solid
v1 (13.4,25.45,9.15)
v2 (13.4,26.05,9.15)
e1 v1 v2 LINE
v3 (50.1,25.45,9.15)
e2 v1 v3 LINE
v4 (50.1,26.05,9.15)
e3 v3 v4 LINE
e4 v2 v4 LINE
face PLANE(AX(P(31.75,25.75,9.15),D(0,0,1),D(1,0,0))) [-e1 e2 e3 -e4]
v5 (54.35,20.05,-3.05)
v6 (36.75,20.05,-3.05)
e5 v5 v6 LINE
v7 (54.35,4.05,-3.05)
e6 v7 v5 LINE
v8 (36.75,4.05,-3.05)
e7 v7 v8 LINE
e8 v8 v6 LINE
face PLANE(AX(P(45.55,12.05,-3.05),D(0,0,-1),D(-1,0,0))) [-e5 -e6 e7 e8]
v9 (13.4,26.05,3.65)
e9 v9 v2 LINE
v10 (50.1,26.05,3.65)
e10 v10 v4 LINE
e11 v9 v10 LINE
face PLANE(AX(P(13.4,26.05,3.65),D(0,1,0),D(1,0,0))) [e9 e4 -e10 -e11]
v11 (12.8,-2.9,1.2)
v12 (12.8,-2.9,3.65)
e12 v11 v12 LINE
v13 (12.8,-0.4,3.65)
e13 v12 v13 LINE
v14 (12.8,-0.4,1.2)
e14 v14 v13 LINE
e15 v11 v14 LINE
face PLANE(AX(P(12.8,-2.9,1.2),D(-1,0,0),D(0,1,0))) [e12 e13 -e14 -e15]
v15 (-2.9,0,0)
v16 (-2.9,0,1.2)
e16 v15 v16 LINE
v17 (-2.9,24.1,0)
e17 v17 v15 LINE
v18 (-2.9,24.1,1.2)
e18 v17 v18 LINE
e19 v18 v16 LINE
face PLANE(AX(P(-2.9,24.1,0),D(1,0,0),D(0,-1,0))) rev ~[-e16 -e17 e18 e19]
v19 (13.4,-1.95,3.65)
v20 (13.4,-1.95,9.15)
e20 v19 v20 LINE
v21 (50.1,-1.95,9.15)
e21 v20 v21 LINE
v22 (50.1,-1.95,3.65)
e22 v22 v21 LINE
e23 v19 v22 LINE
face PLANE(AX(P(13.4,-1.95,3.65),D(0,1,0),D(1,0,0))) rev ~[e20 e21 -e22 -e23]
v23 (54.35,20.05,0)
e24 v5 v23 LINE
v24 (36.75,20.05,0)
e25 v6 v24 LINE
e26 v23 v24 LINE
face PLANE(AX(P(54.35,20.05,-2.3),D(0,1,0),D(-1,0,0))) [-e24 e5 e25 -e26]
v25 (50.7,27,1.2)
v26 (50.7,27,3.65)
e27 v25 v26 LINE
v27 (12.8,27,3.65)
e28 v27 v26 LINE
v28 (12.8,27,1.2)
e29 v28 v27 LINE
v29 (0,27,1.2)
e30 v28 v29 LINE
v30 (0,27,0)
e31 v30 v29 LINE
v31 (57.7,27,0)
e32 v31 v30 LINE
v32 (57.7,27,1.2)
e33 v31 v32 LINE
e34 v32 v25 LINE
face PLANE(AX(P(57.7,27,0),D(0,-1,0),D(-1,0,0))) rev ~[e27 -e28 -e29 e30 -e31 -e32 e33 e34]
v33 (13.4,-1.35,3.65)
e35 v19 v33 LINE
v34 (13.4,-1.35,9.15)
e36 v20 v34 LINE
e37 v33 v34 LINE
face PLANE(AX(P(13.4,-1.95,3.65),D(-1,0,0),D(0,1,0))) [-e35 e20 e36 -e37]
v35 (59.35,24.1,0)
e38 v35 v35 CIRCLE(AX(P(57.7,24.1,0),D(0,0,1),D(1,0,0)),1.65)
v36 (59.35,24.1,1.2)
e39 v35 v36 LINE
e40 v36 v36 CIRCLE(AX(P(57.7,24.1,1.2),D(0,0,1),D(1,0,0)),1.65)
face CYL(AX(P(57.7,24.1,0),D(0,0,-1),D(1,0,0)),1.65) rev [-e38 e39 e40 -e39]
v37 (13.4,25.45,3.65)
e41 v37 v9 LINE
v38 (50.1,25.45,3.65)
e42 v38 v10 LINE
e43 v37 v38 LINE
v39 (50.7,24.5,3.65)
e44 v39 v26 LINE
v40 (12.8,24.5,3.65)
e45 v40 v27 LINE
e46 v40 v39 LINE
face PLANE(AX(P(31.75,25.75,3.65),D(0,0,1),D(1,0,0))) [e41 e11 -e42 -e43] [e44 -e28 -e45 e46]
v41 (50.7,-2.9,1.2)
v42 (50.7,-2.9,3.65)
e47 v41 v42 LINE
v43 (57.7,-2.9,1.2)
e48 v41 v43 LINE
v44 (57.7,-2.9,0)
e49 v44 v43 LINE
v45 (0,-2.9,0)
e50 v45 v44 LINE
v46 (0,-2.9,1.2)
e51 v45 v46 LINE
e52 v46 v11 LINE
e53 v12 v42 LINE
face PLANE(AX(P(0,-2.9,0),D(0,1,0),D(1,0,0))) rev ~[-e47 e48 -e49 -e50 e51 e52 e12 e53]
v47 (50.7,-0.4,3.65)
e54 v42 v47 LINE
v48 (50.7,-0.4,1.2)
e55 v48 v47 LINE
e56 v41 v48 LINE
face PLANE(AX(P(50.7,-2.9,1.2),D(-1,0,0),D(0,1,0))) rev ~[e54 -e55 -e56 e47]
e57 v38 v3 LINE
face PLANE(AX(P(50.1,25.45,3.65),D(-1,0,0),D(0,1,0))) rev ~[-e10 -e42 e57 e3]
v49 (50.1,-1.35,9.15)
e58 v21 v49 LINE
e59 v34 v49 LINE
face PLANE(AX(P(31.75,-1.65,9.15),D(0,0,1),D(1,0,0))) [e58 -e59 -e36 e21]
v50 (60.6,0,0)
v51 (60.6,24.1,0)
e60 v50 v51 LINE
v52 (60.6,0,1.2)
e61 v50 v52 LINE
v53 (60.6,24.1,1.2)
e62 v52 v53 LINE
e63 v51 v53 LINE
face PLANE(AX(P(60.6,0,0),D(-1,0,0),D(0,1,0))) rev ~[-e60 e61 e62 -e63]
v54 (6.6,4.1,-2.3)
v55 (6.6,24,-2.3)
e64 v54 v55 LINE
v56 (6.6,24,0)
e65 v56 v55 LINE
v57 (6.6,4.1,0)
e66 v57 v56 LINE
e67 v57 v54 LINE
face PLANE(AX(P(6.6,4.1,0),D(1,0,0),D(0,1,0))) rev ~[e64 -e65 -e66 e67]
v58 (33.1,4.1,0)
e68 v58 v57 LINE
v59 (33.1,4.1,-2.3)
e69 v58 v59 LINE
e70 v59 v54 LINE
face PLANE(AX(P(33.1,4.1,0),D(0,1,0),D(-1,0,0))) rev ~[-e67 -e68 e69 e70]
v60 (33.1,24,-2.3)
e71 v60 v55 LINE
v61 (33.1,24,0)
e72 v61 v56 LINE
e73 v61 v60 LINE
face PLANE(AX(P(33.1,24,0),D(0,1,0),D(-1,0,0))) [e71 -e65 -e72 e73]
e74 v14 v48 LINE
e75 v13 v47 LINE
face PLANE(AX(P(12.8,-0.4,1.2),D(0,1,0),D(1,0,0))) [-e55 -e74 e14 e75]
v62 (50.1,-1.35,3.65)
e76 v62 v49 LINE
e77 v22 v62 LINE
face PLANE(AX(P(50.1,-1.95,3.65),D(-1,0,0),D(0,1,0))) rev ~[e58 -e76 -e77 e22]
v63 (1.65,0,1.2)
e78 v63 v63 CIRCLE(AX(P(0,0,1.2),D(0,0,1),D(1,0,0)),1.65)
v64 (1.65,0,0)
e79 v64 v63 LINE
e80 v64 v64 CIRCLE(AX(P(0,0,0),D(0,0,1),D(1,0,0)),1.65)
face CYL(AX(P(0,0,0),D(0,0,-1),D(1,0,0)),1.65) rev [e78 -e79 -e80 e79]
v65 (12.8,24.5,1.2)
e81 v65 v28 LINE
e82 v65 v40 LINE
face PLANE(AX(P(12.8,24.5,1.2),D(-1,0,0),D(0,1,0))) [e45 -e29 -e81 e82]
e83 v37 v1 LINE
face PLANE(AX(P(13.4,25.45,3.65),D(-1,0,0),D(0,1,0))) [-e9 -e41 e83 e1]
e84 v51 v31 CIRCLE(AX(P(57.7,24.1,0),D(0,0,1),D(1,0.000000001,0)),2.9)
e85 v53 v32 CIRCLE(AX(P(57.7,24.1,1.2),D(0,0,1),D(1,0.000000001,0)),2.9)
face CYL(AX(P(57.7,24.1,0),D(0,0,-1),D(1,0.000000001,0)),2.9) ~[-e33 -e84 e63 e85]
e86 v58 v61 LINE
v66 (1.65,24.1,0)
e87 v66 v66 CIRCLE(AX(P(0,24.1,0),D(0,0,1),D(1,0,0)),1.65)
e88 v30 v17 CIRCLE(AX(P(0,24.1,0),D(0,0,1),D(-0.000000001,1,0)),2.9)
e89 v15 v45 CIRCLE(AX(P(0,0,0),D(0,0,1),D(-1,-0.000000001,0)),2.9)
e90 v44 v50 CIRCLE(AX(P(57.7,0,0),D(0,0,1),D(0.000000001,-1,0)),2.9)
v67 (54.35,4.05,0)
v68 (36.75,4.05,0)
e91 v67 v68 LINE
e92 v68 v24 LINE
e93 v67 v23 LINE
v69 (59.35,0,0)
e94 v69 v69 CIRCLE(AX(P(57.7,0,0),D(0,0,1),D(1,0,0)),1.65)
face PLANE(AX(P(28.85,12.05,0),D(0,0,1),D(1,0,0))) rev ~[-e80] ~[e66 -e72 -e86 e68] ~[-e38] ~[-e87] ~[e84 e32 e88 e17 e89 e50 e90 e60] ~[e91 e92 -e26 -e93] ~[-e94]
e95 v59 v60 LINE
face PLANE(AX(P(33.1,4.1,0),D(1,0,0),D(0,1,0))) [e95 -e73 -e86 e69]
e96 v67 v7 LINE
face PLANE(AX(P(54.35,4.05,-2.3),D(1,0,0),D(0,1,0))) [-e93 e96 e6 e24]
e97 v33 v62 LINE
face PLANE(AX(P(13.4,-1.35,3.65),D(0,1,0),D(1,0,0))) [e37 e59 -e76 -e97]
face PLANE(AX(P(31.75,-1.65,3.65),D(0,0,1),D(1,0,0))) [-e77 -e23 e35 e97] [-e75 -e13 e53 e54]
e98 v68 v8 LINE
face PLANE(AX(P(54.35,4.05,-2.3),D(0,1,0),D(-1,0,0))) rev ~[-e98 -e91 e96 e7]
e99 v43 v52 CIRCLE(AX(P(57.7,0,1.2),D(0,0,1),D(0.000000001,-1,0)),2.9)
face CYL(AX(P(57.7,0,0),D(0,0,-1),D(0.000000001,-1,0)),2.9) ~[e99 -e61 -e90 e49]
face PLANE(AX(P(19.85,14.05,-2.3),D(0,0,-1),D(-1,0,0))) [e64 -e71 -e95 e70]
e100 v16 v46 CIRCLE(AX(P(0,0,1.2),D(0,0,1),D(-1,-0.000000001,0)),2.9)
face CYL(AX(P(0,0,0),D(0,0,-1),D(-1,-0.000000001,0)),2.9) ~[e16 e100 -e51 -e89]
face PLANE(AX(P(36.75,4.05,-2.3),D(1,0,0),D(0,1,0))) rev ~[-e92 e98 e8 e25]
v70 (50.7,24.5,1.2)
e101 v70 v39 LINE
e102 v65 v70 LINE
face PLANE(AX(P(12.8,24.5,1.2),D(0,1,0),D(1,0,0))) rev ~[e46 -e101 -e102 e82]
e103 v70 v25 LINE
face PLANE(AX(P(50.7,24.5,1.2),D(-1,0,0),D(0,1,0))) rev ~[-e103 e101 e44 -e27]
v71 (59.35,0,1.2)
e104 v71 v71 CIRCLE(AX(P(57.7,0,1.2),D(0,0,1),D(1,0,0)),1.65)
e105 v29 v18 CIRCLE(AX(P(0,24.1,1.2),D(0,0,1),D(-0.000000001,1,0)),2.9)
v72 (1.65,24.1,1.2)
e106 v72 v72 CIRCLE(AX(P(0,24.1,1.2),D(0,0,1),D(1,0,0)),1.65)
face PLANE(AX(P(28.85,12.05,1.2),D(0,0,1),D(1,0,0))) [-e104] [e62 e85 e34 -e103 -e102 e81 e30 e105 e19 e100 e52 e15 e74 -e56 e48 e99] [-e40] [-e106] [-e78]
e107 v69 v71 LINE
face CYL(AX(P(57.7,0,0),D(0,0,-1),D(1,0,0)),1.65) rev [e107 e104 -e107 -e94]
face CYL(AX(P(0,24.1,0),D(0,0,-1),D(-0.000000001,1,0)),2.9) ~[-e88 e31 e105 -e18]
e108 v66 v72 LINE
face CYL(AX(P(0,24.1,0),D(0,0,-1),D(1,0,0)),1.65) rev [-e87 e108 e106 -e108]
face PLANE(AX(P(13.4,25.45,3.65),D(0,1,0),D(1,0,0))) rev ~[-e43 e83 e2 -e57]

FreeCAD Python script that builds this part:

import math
import FreeCAD as App
import Part
import Sketcher
from FreeCAD import Vector
Q = App.Units.Quantity

doc = App.newDocument("Part")
params = doc.addObject("Spreadsheet::Sheet", "Params")
for row, (alias, value) in enumerate([
    ("sketch1_diameter", "3.3 mm"),
    ("sketch1_radius", "2.9 mm"),
    ("sketch1_width", "57.7 mm"),
    ("sketch1_height", "24.1 mm"),
    ("pad1_length", "1.2 mm"),
    ("sketch2_height", "16 mm"),
    ("sketch2_width", "17.6 mm"),
    ("sketch2_width2", "26.5 mm"),
    ("sketch2_height2", "19.9 mm"),
    ("pad2_length", "2.3 mm"),
    ("sketch3_height", "16 mm"),
    ("sketch3_width", "17.6 mm"),
    ("pad3_length", "0.75 mm"),
    ("sketch4_width", "37.9 mm"),
    ("sketch4_height", "2.5 mm"),
    ("pad4_length", "2.45 mm"),
    ("sketch5_width", "36.7 mm"),
    ("sketch5_height", "0.6 mm"),
    ("pad5_length", "5.5 mm"),
], start=1):
    params.set(f"A{row}", alias)
    params.set(f"B{row}", "=" + value)
    params.setAlias(f"B{row}", alias)

body = doc.addObject("PartDesign::Body", "Body")

sketch1 = body.newObject("Sketcher::SketchObject", "Sketch")
sketch1.AttachmentSupport = (doc.getObject("XY_Plane"), [""])
sketch1.MapMode = "FlatFace"
sketch1.addGeometry([
    Part.LineSegment(Vector(0, -2.9, 0), Vector(57.7, -2.9, 0)),
    Part.ArcOfCircle(Part.Circle(Vector(57.7, 0, 0), Vector(0, 0, 1), 2.9), math.radians(-90), math.radians(0)),
    Part.LineSegment(Vector(60.6, 0, 0), Vector(60.6, 24.1, 0)),
    Part.ArcOfCircle(Part.Circle(Vector(57.7, 24.1, 0), Vector(0, 0, 1), 2.9), math.radians(0), math.radians(90)),
    Part.LineSegment(Vector(57.7, 27, 0), Vector(0, 27, 0)),
    Part.ArcOfCircle(Part.Circle(Vector(0, 24.1, 0), Vector(0, 0, 1), 2.9), math.radians(90), math.radians(180)),
    Part.LineSegment(Vector(-2.9, 24.1, 0), Vector(-2.9, 0, 0)),
    Part.ArcOfCircle(Part.Circle(Vector(0, 0, 0), Vector(0, 0, 1), 2.9), math.radians(-180), math.radians(-90)),
    Part.Circle(Vector(0, 0, 0), Vector(0, 0, 1), 1.6),
    Part.Circle(Vector(57.7, 0, 0), Vector(0, 0, 1), 1.6),
    Part.Circle(Vector(0, 24.1, 0), Vector(0, 0, 1), 1.6),
    Part.Circle(Vector(57.7, 24.1, 0), Vector(0, 0, 1), 1.6),
], False)
sketch1.addConstraint([
    Sketcher.Constraint("Tangent", 0, 2, 1, 1),
    Sketcher.Constraint("Tangent", 1, 2, 2, 1),
    Sketcher.Constraint("Tangent", 2, 2, 3, 1),
    Sketcher.Constraint("Tangent", 3, 2, 4, 1),
    Sketcher.Constraint("Tangent", 4, 2, 5, 1),
    Sketcher.Constraint("Tangent", 5, 2, 6, 1),
    Sketcher.Constraint("Tangent", 6, 2, 7, 1),
    Sketcher.Constraint("Tangent", 7, 2, 0, 1),
    Sketcher.Constraint("Horizontal", 0),
    Sketcher.Constraint("Vertical", 2),
    Sketcher.Constraint("Horizontal", 4),
    Sketcher.Constraint("Vertical", 6),
    Sketcher.Constraint("Coincident", 7, 3, -1, 1),
    Sketcher.Constraint("Coincident", 8, 3, -1, 1),
    Sketcher.Constraint("Coincident", 9, 3, 1, 3),
    Sketcher.Constraint("Coincident", 10, 3, 5, 3),
    Sketcher.Constraint("Coincident", 11, 3, 3, 3),
    Sketcher.Constraint("Equal", 1, 3),
    Sketcher.Constraint("Equal", 3, 5),
    Sketcher.Constraint("Equal", 5, 7),
    Sketcher.Constraint("Equal", 8, 9),
    Sketcher.Constraint("Equal", 9, 10),
    Sketcher.Constraint("Equal", 10, 11),
    Sketcher.Constraint("Diameter", 8, Q("3.3 mm")),
    Sketcher.Constraint("Radius", 1, Q("2.9 mm")),
    Sketcher.Constraint("DistanceX", 0, 1, 0, 2, Q("57.7 mm")),
    Sketcher.Constraint("DistanceY", 2, 1, 2, 2, Q("24.1 mm")),
])
sketch1.setExpression("Constraints[23]", "Params.sketch1_diameter")
sketch1.setExpression("Constraints[24]", "Params.sketch1_radius")
sketch1.setExpression("Constraints[25]", "Params.sketch1_width")
sketch1.setExpression("Constraints[26]", "Params.sketch1_height")
pad1 = body.newObject("PartDesign::Pad", "Pad")
pad1.Profile = sketch1
pad1.setExpression("Length", "Params.pad1_length")

sketch2 = body.newObject("Sketcher::SketchObject", "Sketch001")
sketch2.AttachmentSupport = (doc.getObject("XY_Plane"), [""])
sketch2.MapMode = "FlatFace"
sketch2.addGeometry([
    Part.LineSegment(Vector(54, 20, 0), Vector(54, 4, 0)),
    Part.LineSegment(Vector(54, 4, 0), Vector(37, 4, 0)),
    Part.LineSegment(Vector(37, 4, 0), Vector(37, 20, 0)),
    Part.LineSegment(Vector(37, 20, 0), Vector(54, 20, 0)),
    Part.LineSegment(Vector(33, 24, 0), Vector(33, 4, 0)),
    Part.LineSegment(Vector(33, 4, 0), Vector(7, 4, 0)),
    Part.LineSegment(Vector(7, 4, 0), Vector(7, 24, 0)),
    Part.LineSegment(Vector(7, 24, 0), Vector(33, 24, 0)),
], False)
sketch2.addConstraint([
    Sketcher.Constraint("Coincident", 0, 2, 1, 1),
    Sketcher.Constraint("Coincident", 1, 2, 2, 1),
    Sketcher.Constraint("Coincident", 2, 2, 3, 1),
    Sketcher.Constraint("Coincident", 3, 2, 0, 1),
    Sketcher.Constraint("Coincident", 4, 2, 5, 1),
    Sketcher.Constraint("Coincident", 5, 2, 6, 1),
    Sketcher.Constraint("Coincident", 6, 2, 7, 1),
    Sketcher.Constraint("Coincident", 7, 2, 4, 1),
    Sketcher.Constraint("Vertical", 0),
    Sketcher.Constraint("Horizontal", 1),
    Sketcher.Constraint("Vertical", 2),
    Sketcher.Constraint("Horizontal", 3),
    Sketcher.Constraint("Vertical", 4),
    Sketcher.Constraint("Horizontal", 5),
    Sketcher.Constraint("Vertical", 6),
    Sketcher.Constraint("Horizontal", 7),
    Sketcher.Constraint("DistanceY", 0, 2, 0, 1, Q("16 mm")),
    Sketcher.Constraint("DistanceX", 1, 2, 1, 1, Q("17.6 mm")),
    Sketcher.Constraint("DistanceX", 5, 2, 5, 1, Q("26.5 mm")),
    Sketcher.Constraint("DistanceY", 4, 2, 4, 1, Q("19.9 mm")),
    Sketcher.Constraint("DistanceY", -1, 1, 6, 2, Q("24 mm")),
    Sketcher.Constraint("DistanceX", -1, 1, 4, 2, Q("33.1 mm")),
    Sketcher.Constraint("DistanceX", -1, 1, 0, 2, Q("54.35 mm")),
    Sketcher.Constraint("DistanceY", -1, 1, 0, 2, Q("4.05 mm")),
])
sketch2.setExpression("Constraints[16]", "Params.sketch2_height")
sketch2.setExpression("Constraints[17]", "Params.sketch2_width")
sketch2.setExpression("Constraints[18]", "Params.sketch2_width2")
sketch2.setExpression("Constraints[19]", "Params.sketch2_height2")
pad2 = body.newObject("PartDesign::Pad", "Pad001")
pad2.Profile = sketch2
pad2.setExpression("Length", "Params.pad2_length")
pad2.Reversed = True

sketch3 = body.newObject("Sketcher::SketchObject", "Sketch002")
sketch3.AttachmentSupport = (doc.getObject("XY_Plane"), [""])
sketch3.MapMode = "FlatFace"
sketch3.AttachmentOffset = App.Placement(Vector(0, 0, -2.3), App.Rotation())
sketch3.addGeometry([
    Part.LineSegment(Vector(54, 20, 0), Vector(54, 4, 0)),
    Part.LineSegment(Vector(54, 4, 0), Vector(37, 4, 0)),
    Part.LineSegment(Vector(37, 4, 0), Vector(37, 20, 0)),
    Part.LineSegment(Vector(37, 20, 0), Vector(54, 20, 0)),
], False)
sketch3.addConstraint([
    Sketcher.Constraint("Coincident", 0, 2, 1, 1),
    Sketcher.Constraint("Coincident", 1, 2, 2, 1),
    Sketcher.Constraint("Coincident", 2, 2, 3, 1),
    Sketcher.Constraint("Coincident", 3, 2, 0, 1),
    Sketcher.Constraint("Vertical", 0),
    Sketcher.Constraint("Horizontal", 1),
    Sketcher.Constraint("Vertical", 2),
    Sketcher.Constraint("Horizontal", 3),
    Sketcher.Constraint("DistanceY", 0, 2, 0, 1, Q("16 mm")),
    Sketcher.Constraint("DistanceX", 1, 2, 1, 1, Q("17.6 mm")),
    Sketcher.Constraint("DistanceX", -1, 1, 0, 2, Q("54.35 mm")),
    Sketcher.Constraint("DistanceY", -1, 1, 0, 2, Q("4.05 mm")),
])
sketch3.setExpression("Constraints[8]", "Params.sketch3_height")
sketch3.setExpression("Constraints[9]", "Params.sketch3_width")
pad3 = body.newObject("PartDesign::Pad", "Pad002")
pad3.Profile = sketch3
pad3.setExpression("Length", "Params.pad3_length")
pad3.Reversed = True

sketch4 = body.newObject("Sketcher::SketchObject", "Sketch003")
sketch4.AttachmentSupport = (doc.getObject("XY_Plane"), [""])
sketch4.MapMode = "FlatFace"
sketch4.AttachmentOffset = App.Placement(Vector(0, 0, 1.2), App.Rotation())
sketch4.addGeometry([
    Part.LineSegment(Vector(12.8, 27, 0), Vector(12.8, 24.5, 0)),
    Part.LineSegment(Vector(12.8, 24.5, 0), Vector(50.7, 24.5, 0)),
    Part.LineSegment(Vector(50.7, 24.5, 0), Vector(50.7, 27, 0)),
    Part.LineSegment(Vector(50.7, 27, 0), Vector(12.8, 27, 0)),
    Part.LineSegment(Vector(12.8, -0.4, 0), Vector(12.8, -2.9, 0)),
    Part.LineSegment(Vector(12.8, -2.9, 0), Vector(50.7, -2.9, 0)),
    Part.LineSegment(Vector(50.7, -2.9, 0), Vector(50.7, -0.4, 0)),
    Part.LineSegment(Vector(50.7, -0.4, 0), Vector(12.8, -0.4, 0)),
], False)
sketch4.addConstraint([
    Sketcher.Constraint("Coincident", 0, 2, 1, 1),
    Sketcher.Constraint("Coincident", 1, 2, 2, 1),
    Sketcher.Constraint("Coincident", 2, 2, 3, 1),
    Sketcher.Constraint("Coincident", 3, 2, 0, 1),
    Sketcher.Constraint("Coincident", 4, 2, 5, 1),
    Sketcher.Constraint("Coincident", 5, 2, 6, 1),
    Sketcher.Constraint("Coincident", 6, 2, 7, 1),
    Sketcher.Constraint("Coincident", 7, 2, 4, 1),
    Sketcher.Constraint("Vertical", 0),
    Sketcher.Constraint("Horizontal", 1),
    Sketcher.Constraint("Vertical", 2),
    Sketcher.Constraint("Horizontal", 3),
    Sketcher.Constraint("Vertical", 4),
    Sketcher.Constraint("Horizontal", 5),
    Sketcher.Constraint("Vertical", 6),
    Sketcher.Constraint("Horizontal", 7),
    Sketcher.Constraint("Vertical", 3, 2, 4, 2),
    Sketcher.Constraint("Vertical", 2, 2, 5, 2),
    Sketcher.Constraint("Equal", 2, 4),
    Sketcher.Constraint("DistanceX", 1, 1, 1, 2, Q("37.9 mm")),
    Sketcher.Constraint("DistanceY", 0, 2, 0, 1, Q("2.5 mm")),
    Sketcher.Constraint("DistanceY", -1, 1, 2, 2, Q("27 mm")),
    Sketcher.Constraint("DistanceX", -1, 1, 0, 2, Q("12.8 mm")),
    Sketcher.Constraint("DistanceY", 4, 2, -1, 1, Q("2.9 mm")),
])
sketch4.setExpression("Constraints[19]", "Params.sketch4_width")
sketch4.setExpression("Constraints[20]", "Params.sketch4_height")
pad4 = body.newObject("PartDesign::Pad", "Pad003")
pad4.Profile = sketch4
pad4.setExpression("Length", "Params.pad4_length")

sketch5 = body.newObject("Sketcher::SketchObject", "Sketch004")
sketch5.AttachmentSupport = (doc.getObject("XY_Plane"), [""])
sketch5.MapMode = "FlatFace"
sketch5.AttachmentOffset = App.Placement(Vector(0, 0, 3.65), App.Rotation())
sketch5.addGeometry([
    Part.LineSegment(Vector(13.4, -1.4, 0), Vector(13.4, -1.9, 0)),
    Part.LineSegment(Vector(13.4, -1.9, 0), Vector(50.1, -1.9, 0)),
    Part.LineSegment(Vector(50.1, -1.9, 0), Vector(50.1, -1.4, 0)),
    Part.LineSegment(Vector(50.1, -1.4, 0), Vector(13.4, -1.4, 0)),
    Part.LineSegment(Vector(13.4, 26.1, 0), Vector(13.4, 25.4, 0)),
    Part.LineSegment(Vector(13.4, 25.4, 0), Vector(50.1, 25.4, 0)),
    Part.LineSegment(Vector(50.1, 25.4, 0), Vector(50.1, 26.1, 0)),
    Part.LineSegment(Vector(50.1, 26.1, 0), Vector(13.4, 26.1, 0)),
], False)
sketch5.addConstraint([
    Sketcher.Constraint("Coincident", 0, 2, 1, 1),
    Sketcher.Constraint("Coincident", 1, 2, 2, 1),
    Sketcher.Constraint("Coincident", 2, 2, 3, 1),
    Sketcher.Constraint("Coincident", 3, 2, 0, 1),
    Sketcher.Constraint("Coincident", 4, 2, 5, 1),
    Sketcher.Constraint("Coincident", 5, 2, 6, 1),
    Sketcher.Constraint("Coincident", 6, 2, 7, 1),
    Sketcher.Constraint("Coincident", 7, 2, 4, 1),
    Sketcher.Constraint("Vertical", 0),
    Sketcher.Constraint("Horizontal", 1),
    Sketcher.Constraint("Vertical", 2),
    Sketcher.Constraint("Horizontal", 3),
    Sketcher.Constraint("Vertical", 4),
    Sketcher.Constraint("Horizontal", 5),
    Sketcher.Constraint("Vertical", 6),
    Sketcher.Constraint("Horizontal", 7),
    Sketcher.Constraint("Vertical", 3, 2, 4, 2),
    Sketcher.Constraint("Vertical", 2, 2, 5, 2),
    Sketcher.Constraint("Equal", 2, 4),
    Sketcher.Constraint("DistanceX", 1, 1, 1, 2, Q("36.7 mm")),
    Sketcher.Constraint("DistanceY", 0, 2, 0, 1, Q("0.6 mm")),
    Sketcher.Constraint("DistanceY", 1, 2, 6, 2, Q("28 mm")),
    Sketcher.Constraint("DistanceX", -1, 1, 0, 2, Q("13.4 mm")),
    Sketcher.Constraint("DistanceY", 0, 2, -1, 1, Q("1.95 mm")),
])
sketch5.setExpression("Constraints[19]", "Params.sketch5_width")
sketch5.setExpression("Constraints[20]", "Params.sketch5_height")
pad5 = body.newObject("PartDesign::Pad", "Pad004")
pad5.Profile = sketch5
pad5.setExpression("Length", "Params.pad5_length")

doc.recompute()
